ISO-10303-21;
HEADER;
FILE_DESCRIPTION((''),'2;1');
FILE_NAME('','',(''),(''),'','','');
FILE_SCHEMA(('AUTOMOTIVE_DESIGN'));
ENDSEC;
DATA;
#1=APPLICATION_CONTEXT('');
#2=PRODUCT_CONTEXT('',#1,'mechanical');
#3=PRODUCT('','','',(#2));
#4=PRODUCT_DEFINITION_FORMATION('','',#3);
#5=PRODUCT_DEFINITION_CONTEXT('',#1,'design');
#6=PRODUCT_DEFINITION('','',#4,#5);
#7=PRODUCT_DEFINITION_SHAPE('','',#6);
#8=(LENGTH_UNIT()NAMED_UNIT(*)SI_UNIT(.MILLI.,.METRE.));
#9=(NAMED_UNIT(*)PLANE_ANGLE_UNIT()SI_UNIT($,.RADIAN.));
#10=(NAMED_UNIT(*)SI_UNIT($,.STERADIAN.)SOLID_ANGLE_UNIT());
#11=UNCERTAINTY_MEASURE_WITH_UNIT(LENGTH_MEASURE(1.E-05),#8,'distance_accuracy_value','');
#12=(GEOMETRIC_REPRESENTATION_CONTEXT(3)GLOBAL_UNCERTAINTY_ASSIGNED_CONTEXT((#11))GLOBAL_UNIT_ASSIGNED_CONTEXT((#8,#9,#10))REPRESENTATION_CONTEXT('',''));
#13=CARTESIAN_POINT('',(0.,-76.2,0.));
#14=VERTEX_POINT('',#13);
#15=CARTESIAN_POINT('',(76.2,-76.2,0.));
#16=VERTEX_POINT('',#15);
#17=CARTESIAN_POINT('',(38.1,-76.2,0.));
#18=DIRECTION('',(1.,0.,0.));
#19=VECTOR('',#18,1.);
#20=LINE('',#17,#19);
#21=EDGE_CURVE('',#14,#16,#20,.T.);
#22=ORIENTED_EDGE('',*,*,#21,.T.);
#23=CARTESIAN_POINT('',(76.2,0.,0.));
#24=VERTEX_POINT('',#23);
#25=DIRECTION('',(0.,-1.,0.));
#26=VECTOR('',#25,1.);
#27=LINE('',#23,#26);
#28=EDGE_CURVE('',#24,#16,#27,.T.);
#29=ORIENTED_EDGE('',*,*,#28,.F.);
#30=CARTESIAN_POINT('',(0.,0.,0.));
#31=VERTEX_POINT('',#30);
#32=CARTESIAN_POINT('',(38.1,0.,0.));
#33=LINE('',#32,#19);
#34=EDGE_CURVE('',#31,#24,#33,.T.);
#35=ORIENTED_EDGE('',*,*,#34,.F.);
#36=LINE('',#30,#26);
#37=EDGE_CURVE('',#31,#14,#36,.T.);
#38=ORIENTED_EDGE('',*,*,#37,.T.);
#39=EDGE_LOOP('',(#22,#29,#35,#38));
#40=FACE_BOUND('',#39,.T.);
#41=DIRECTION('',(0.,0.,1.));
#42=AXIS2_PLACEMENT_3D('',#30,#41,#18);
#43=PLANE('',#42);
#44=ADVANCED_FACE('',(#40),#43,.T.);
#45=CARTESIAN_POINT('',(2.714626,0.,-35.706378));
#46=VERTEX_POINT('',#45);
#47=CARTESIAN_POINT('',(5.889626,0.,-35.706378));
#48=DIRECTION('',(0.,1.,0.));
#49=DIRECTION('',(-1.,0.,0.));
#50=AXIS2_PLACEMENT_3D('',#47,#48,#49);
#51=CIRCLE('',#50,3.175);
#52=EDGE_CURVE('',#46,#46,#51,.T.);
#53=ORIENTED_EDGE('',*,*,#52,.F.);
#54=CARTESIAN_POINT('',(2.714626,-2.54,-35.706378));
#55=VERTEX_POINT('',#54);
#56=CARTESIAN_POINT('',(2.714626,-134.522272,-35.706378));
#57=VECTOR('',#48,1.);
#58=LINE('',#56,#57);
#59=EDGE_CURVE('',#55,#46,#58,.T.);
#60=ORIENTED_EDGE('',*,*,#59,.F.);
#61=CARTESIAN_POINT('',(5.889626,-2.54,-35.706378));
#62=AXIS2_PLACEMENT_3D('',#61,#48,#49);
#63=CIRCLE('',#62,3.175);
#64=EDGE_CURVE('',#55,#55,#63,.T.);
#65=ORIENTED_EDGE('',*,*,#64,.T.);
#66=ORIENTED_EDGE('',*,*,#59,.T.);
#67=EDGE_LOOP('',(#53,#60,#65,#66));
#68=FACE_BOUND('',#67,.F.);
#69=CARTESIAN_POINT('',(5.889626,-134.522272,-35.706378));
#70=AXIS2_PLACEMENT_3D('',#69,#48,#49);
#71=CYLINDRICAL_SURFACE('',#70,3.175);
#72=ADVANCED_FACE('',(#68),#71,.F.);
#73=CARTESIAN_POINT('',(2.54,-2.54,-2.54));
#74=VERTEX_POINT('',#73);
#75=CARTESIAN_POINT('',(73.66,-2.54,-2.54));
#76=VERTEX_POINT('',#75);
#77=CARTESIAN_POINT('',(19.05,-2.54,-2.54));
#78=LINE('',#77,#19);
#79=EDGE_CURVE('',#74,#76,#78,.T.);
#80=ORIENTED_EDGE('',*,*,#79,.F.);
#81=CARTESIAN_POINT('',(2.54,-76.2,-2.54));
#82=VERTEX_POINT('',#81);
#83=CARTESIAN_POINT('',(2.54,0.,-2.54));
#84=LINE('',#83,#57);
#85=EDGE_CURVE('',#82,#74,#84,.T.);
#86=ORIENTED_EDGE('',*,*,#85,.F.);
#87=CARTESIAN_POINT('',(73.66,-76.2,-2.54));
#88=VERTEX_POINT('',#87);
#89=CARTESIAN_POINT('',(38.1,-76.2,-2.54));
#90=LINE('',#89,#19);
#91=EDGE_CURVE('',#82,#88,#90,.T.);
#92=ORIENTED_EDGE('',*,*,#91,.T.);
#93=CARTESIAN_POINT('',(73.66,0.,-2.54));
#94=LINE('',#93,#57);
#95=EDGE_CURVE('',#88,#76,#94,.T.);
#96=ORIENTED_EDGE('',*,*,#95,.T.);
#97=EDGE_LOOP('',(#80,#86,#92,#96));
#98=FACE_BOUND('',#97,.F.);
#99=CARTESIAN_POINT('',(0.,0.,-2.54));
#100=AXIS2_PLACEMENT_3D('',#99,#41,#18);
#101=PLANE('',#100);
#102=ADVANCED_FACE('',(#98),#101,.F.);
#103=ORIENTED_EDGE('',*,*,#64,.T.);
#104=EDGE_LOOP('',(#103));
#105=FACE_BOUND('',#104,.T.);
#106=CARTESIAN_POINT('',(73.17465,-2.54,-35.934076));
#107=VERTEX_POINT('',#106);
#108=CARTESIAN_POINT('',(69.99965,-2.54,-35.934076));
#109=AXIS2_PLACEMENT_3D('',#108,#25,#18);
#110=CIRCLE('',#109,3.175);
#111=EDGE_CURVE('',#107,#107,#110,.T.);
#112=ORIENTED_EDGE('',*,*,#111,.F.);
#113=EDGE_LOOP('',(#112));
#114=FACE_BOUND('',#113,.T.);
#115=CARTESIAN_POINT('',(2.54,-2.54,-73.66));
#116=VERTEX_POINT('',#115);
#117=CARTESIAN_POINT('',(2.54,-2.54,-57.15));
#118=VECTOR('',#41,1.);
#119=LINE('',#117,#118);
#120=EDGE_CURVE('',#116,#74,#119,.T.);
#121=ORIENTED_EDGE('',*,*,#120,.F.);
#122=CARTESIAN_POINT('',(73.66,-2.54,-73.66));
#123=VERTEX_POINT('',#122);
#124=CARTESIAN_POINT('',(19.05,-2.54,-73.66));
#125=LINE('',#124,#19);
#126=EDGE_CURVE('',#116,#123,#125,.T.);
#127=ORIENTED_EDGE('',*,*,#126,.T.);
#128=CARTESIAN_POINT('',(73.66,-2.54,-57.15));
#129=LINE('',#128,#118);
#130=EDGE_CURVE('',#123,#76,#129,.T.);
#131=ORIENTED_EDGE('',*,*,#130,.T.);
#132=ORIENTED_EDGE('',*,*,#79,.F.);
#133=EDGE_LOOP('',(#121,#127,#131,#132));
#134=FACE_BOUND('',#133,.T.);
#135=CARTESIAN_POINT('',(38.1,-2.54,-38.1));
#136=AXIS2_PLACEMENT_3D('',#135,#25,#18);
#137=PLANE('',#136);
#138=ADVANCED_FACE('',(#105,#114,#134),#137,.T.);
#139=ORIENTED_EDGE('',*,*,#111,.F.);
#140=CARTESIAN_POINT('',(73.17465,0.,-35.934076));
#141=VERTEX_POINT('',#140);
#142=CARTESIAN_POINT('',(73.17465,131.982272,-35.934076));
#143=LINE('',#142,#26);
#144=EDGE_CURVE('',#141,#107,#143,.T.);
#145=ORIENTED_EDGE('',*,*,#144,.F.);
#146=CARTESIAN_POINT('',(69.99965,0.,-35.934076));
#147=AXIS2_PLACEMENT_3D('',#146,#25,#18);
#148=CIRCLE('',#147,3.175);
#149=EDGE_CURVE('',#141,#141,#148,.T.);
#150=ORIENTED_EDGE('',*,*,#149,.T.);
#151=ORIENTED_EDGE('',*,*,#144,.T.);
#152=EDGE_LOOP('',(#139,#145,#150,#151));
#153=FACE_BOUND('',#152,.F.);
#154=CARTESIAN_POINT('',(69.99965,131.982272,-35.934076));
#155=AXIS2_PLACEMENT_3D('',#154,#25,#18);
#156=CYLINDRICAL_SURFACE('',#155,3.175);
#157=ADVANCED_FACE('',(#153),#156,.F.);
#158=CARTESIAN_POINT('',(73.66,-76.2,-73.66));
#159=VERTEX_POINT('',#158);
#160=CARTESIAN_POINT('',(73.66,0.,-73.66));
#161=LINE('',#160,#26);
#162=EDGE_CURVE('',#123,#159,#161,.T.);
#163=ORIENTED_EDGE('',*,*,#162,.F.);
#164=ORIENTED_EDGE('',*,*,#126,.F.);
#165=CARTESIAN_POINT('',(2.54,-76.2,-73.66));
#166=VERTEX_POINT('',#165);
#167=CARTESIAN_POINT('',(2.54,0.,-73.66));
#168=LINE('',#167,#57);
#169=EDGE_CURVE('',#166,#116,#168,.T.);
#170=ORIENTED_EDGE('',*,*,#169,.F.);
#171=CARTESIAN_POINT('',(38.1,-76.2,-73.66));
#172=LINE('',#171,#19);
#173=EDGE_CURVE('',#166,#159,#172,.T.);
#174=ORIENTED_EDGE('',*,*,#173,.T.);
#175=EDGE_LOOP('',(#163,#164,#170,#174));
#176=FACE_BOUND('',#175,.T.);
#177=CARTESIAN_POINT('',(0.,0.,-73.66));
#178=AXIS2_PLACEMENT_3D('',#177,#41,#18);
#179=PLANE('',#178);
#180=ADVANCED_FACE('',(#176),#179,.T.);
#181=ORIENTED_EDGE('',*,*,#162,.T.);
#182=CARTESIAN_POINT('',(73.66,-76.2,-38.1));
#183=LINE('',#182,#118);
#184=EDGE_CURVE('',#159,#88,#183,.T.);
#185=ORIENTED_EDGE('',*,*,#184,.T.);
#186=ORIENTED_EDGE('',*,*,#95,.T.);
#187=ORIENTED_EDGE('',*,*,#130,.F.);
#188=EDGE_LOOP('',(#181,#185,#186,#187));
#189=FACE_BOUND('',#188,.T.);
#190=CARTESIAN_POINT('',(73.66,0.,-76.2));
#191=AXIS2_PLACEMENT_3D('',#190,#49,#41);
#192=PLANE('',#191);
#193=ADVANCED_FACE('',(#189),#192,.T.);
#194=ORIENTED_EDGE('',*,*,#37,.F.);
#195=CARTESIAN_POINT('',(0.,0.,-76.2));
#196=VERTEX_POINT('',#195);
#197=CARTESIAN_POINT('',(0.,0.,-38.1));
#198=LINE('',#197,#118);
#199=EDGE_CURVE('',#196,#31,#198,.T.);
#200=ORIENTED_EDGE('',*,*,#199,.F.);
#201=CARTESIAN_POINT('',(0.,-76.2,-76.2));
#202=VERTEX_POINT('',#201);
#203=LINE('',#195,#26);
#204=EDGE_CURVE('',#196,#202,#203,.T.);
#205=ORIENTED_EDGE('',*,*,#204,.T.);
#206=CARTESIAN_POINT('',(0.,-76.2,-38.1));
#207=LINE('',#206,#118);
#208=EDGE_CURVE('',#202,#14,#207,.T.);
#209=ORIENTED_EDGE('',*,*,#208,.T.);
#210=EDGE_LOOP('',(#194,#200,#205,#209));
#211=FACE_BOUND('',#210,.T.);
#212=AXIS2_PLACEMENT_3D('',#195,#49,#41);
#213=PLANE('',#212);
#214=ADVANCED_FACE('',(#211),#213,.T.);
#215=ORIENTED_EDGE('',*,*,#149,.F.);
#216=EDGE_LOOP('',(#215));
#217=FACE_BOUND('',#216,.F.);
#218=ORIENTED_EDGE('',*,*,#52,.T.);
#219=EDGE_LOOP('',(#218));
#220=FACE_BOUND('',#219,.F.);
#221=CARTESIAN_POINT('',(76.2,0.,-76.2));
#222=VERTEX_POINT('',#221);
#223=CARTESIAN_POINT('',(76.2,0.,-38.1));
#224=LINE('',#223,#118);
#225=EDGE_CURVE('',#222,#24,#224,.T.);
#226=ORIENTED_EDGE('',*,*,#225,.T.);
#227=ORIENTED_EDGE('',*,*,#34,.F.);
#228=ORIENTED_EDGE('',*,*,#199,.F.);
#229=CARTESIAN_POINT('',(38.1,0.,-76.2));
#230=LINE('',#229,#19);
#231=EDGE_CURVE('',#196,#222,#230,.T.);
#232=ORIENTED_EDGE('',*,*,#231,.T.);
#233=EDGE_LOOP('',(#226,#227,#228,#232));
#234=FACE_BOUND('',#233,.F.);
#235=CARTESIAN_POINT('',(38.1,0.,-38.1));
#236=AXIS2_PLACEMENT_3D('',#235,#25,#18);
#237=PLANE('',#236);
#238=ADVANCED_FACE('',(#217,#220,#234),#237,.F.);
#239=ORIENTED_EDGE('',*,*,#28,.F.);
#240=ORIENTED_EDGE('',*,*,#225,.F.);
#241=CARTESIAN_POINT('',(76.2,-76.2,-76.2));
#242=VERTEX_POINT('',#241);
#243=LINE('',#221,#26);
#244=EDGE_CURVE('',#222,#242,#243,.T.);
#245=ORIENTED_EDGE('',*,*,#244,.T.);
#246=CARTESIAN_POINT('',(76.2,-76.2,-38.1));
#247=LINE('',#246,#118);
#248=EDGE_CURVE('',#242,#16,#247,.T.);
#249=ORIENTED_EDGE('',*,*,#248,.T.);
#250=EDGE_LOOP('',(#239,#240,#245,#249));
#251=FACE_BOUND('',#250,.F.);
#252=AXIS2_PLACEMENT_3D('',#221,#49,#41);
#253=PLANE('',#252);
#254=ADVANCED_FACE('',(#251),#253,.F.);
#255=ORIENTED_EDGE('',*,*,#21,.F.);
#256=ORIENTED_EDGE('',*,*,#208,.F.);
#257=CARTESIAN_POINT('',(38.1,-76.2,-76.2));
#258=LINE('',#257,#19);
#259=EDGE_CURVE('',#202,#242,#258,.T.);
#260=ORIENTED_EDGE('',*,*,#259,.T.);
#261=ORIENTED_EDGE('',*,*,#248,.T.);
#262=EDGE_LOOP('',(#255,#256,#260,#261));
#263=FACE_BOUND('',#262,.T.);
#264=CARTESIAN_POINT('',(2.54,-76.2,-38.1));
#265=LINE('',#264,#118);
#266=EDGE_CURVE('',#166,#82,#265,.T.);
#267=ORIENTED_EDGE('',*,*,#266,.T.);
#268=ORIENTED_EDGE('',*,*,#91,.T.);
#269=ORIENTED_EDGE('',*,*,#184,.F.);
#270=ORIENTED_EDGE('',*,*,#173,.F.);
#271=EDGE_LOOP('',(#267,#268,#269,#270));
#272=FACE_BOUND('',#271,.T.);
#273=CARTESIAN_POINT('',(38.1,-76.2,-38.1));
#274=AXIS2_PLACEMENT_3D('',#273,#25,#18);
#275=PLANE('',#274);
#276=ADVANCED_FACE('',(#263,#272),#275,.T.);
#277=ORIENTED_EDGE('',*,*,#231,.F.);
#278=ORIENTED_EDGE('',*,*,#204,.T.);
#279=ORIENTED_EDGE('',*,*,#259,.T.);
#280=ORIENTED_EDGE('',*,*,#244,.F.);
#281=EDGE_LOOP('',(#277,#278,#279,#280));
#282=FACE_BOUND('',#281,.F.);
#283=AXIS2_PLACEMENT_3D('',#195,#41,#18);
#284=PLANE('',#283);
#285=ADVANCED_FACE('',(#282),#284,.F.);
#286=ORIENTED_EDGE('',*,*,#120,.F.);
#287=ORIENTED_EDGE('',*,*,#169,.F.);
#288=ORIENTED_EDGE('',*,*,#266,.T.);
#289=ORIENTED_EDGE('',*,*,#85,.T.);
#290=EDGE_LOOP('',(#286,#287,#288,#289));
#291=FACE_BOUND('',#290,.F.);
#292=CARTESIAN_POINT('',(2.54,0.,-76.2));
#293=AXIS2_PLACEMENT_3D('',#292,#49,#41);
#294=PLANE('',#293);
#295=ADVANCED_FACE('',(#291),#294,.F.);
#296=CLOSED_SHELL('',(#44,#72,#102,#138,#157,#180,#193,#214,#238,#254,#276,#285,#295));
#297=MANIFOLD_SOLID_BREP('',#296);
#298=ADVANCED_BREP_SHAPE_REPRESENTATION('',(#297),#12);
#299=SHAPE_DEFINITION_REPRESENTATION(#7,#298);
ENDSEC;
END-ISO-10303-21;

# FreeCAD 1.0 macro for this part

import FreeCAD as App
import Part
import Sketcher

V = App.Vector
Q = App.Units.Quantity


def faces_at(feature, points):
    """Names of the faces that lie closest to the given points."""
    faces = feature.Shape.Faces
    near = lambda p: min(range(len(faces)), key=lambda i: faces[i].distToShape(Part.Vertex(*p))[0])
    return sorted({f"Face{near(p) + 1}" for p in points})

doc = App.newDocument("Part")
body = doc.addObject("PartDesign::Body", "Body")

sketch1 = body.newObject("Sketcher::SketchObject", "Sketch")
sketch1.AttachmentSupport = (doc.getObject("XZ_Plane"), [""])
sketch1.MapMode = "FlatFace"
sketch1.addGeometry(Part.LineSegment(V(0, 0, 0), V(0, -76, 0)), False)
sketch1.addGeometry(Part.LineSegment(V(0, -76, 0), V(76, -76, 0)), False)
sketch1.addGeometry(Part.LineSegment(V(76, -76, 0), V(76, 0, 0)), False)
sketch1.addGeometry(Part.LineSegment(V(76, 0, 0), V(0, 0, 0)), False)
sketch1.addConstraint(Sketcher.Constraint("Coincident", 0, 2, 1, 1))
sketch1.addConstraint(Sketcher.Constraint("Coincident", 1, 2, 2, 1))
sketch1.addConstraint(Sketcher.Constraint("Coincident", 2, 2, 3, 1))
sketch1.addConstraint(Sketcher.Constraint("Coincident", 3, 2, 0, 1))
sketch1.addConstraint(Sketcher.Constraint("Vertical", 0))
sketch1.addConstraint(Sketcher.Constraint("Horizontal", 1))
sketch1.addConstraint(Sketcher.Constraint("Vertical", 2))
sketch1.addConstraint(Sketcher.Constraint("Horizontal", 3))
sketch1.addConstraint(Sketcher.Constraint("Coincident", 3, 2, -1, 1))
sketch1.addConstraint(Sketcher.Constraint("Equal", 3, 0))
sketch1.addConstraint(Sketcher.Constraint("DistanceX", 1, 1, 1, 2, Q("3 in")))
pad1 = body.newObject("PartDesign::Pad", "Pad")
pad1.Profile = sketch1
pad1.Length = Q("3 in")
doc.recompute()

thickness = body.newObject("PartDesign::Thickness", "Thickness")
thickness.Base = (pad1, faces_at(pad1, [(38.1, -76.2, -38.1)]))
thickness.Value = Q("0.1 in")
thickness.Reversed = True
thickness.Join = "Arc"

sketch2 = body.newObject("Sketcher::SketchObject", "Sketch001")
sketch2.AttachmentSupport = (doc.getObject("XZ_Plane"), [""])
sketch2.MapMode = "FlatFace"
sketch2.addGeometry(Part.Circle(V(70, -35.9, 0), V(0, 0, 1), 3.2), False)
sketch2.addConstraint(Sketcher.Constraint("Diameter", 0, Q("0.25 in")))
sketch2.addConstraint(Sketcher.Constraint("DistanceX", -1, 1, 0, 3, Q("69.99965 mm")))
sketch2.addConstraint(Sketcher.Constraint("DistanceY", 0, 3, -1, 1, Q("35.934076 mm")))
doc.recompute()
hole = body.newObject("PartDesign::Hole", "Hole")
hole.Profile = sketch2
hole.ThreadType = "None"
hole.Diameter = Q("0.25 in")
hole.DepthType = "ThroughAll"
hole.Reversed = True

sketch3 = body.newObject("Sketcher::SketchObject", "Sketch002")
sketch3.AttachmentSupport = (doc.getObject("XZ_Plane"), [""])
sketch3.MapMode = "FlatFace"
sketch3.AttachmentOffset = App.Placement(V(0, 0, 0.1 * 25.4), App.Rotation())
sketch3.addGeometry(Part.Circle(V(5.9, -35.7, 0), V(0, 0, 1), 3.2), False)
sketch3.addConstraint(Sketcher.Constraint("Diameter", 0, Q("0.25 in")))
sketch3.addConstraint(Sketcher.Constraint("DistanceX", -1, 1, 0, 3, Q("5.889626 mm")))
sketch3.addConstraint(Sketcher.Constraint("DistanceY", 0, 3, -1, 1, Q("35.706378 mm")))
doc.recompute()
hole2 = body.newObject("PartDesign::Hole", "Hole001")
hole2.Profile = sketch3
hole2.ThreadType = "None"
hole2.Diameter = Q("0.25 in")
hole2.DepthType = "ThroughAll"

doc.recompute()
